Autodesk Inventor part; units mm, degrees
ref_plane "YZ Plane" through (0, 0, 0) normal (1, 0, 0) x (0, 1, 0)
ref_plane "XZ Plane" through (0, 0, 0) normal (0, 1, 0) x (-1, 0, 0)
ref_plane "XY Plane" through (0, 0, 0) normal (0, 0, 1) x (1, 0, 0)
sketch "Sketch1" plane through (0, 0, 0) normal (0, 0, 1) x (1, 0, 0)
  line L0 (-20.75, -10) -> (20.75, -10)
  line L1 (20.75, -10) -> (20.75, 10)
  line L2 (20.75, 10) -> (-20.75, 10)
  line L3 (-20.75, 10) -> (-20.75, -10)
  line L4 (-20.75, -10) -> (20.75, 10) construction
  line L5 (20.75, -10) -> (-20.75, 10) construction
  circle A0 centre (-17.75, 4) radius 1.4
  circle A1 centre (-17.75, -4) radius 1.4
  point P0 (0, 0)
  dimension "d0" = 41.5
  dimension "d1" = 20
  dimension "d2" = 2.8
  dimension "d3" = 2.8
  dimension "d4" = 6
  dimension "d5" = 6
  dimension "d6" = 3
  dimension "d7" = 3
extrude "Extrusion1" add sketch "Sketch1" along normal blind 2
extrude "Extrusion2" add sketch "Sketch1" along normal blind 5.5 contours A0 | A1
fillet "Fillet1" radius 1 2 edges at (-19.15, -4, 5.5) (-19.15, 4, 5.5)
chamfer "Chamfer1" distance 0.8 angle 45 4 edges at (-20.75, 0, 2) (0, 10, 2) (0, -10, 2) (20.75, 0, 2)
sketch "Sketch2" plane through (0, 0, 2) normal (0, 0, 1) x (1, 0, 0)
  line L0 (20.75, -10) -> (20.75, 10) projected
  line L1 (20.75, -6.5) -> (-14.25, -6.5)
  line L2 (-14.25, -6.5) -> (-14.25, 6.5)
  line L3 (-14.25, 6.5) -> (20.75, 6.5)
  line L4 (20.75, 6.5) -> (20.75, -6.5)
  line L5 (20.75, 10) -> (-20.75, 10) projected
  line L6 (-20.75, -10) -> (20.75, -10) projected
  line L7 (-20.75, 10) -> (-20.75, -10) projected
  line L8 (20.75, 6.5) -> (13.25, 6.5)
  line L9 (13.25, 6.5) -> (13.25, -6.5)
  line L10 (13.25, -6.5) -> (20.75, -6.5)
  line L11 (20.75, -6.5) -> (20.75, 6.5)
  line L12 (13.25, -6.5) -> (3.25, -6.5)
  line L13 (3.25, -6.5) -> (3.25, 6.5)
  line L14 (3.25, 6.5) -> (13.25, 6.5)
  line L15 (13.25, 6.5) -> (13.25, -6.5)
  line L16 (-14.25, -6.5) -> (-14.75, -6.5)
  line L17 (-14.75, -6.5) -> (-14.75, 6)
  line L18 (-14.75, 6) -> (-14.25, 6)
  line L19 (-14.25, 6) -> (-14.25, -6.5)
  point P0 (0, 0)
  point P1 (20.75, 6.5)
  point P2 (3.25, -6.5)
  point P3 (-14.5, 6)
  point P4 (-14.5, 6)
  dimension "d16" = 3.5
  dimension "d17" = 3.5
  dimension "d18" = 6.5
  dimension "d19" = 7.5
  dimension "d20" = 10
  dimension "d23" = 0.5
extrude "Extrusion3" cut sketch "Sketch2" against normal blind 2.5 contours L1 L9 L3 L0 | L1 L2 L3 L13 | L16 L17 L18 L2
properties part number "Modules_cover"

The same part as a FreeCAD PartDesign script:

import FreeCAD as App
import Part
import Sketcher
Q = App.Units.Quantity


def edges_at(feature, points):
    """Names of the edges that pass closest to the given points."""
    edges = feature.Shape.Edges
    near = lambda p: min(range(len(edges)), key=lambda i: edges[i].distToShape(Part.Vertex(*p))[0])
    return sorted({f"Edge{near(p) + 1}" for p in points})

doc = App.newDocument("Part")
body = doc.addObject("PartDesign::Body", "Body")

# Sketch on XY plane
sketch1 = body.newObject("Sketcher::SketchObject", "Sketch")
sketch1.AttachmentSupport = (doc.getObject("XY_Plane"), [""])
sketch1.MapMode = "FlatFace"
sketch1.addGeometry(Part.LineSegment(App.Vector(-20.8, 10, 0), App.Vector(-20.8, -10, 0)), False)
sketch1.addGeometry(Part.LineSegment(App.Vector(-20.8, -10, 0), App.Vector(20.8, -10, 0)), False)
sketch1.addGeometry(Part.LineSegment(App.Vector(20.8, -10, 0), App.Vector(20.8, 10, 0)), False)
sketch1.addGeometry(Part.LineSegment(App.Vector(20.8, 10, 0), App.Vector(-20.8, 10, 0)), False)
sketch1.addGeometry(Part.Circle(App.Vector(-17.8, -4, 0), App.Vector(0, 0, 1), 1.4), False)
sketch1.addGeometry(Part.Circle(App.Vector(-17.8, 4, 0), App.Vector(0, 0, 1), 1.4), False)
sketch1.addConstraint(Sketcher.Constraint("Coincident", 0, 2, 1, 1))
sketch1.addConstraint(Sketcher.Constraint("Coincident", 1, 2, 2, 1))
sketch1.addConstraint(Sketcher.Constraint("Coincident", 2, 2, 3, 1))
sketch1.addConstraint(Sketcher.Constraint("Coincident", 3, 2, 0, 1))
sketch1.addConstraint(Sketcher.Constraint("Vertical", 0))
sketch1.addConstraint(Sketcher.Constraint("Horizontal", 1))
sketch1.addConstraint(Sketcher.Constraint("Vertical", 2))
sketch1.addConstraint(Sketcher.Constraint("Horizontal", 3))
sketch1.addConstraint(Sketcher.Constraint("Equal", 4, 5))
sketch1.addConstraint(Sketcher.Constraint("Symmetric", 0, 2, 2, 2, -1, 1))
sketch1.addConstraint(Sketcher.Constraint("Symmetric", 4, 3, 5, 3, -1))
sketch1.addConstraint(Sketcher.Constraint("Diameter", 4, Q("2.8 mm")))
sketch1.addConstraint(Sketcher.Constraint("DistanceY", 0, 2, 0, 1, Q("20 mm")))
sketch1.addConstraint(Sketcher.Constraint("DistanceX", 1, 1, 1, 2, Q("41.5 mm")))
sketch1.addConstraint(Sketcher.Constraint("DistanceX", 0, 2, 4, 3, Q("3 mm")))
sketch1.addConstraint(Sketcher.Constraint("DistanceY", 0, 2, 4, 3, Q("6 mm")))
pad1 = body.newObject("PartDesign::Pad", "Pad")
pad1.Profile = sketch1
pad1.Length = 2

# Sketch on XY plane
sketch2 = body.newObject("Sketcher::SketchObject", "Sketch001")
sketch2.AttachmentSupport = (doc.getObject("XY_Plane"), [""])
sketch2.MapMode = "FlatFace"
sketch2.addGeometry(Part.Circle(App.Vector(-17.8, 4, 0), App.Vector(0, 0, 1), 1.4), False)
sketch2.addGeometry(Part.Circle(App.Vector(-17.8, -4, 0), App.Vector(0, 0, 1), 1.4), False)
sketch2.addConstraint(Sketcher.Constraint("Equal", 0, 1))
sketch2.addConstraint(Sketcher.Constraint("Symmetric", 0, 3, 1, 3, -1))
sketch2.addConstraint(Sketcher.Constraint("Diameter", 0, Q("2.8 mm")))
sketch2.addConstraint(Sketcher.Constraint("DistanceY", -1, 1, 0, 3, Q("4 mm")))
sketch2.addConstraint(Sketcher.Constraint("DistanceX", 0, 3, -1, 1, Q("17.75 mm")))
pad2 = body.newObject("PartDesign::Pad", "Pad001")
pad2.Profile = sketch2
pad2.Length = 5.5
doc.recompute()

fillet = body.newObject("PartDesign::Fillet", "Fillet")
fillet.Base = (pad2, edges_at(pad2, [(-19.15, -4, 5.5), (-19.15, 4, 5.5)]))
fillet.Radius = 1
doc.recompute()

chamfer = body.newObject("PartDesign::Chamfer", "Chamfer")
chamfer.Base = (fillet, edges_at(fillet, [
    (-20.75, 0, 2),
    (0, 10, 2),
    (0, -10, 2),
    (20.75, 0, 2),
]))
chamfer.Size = 0.8

# Sketch on XY plane
sketch3 = body.newObject("Sketcher::SketchObject", "Sketch002")
sketch3.AttachmentSupport = (doc.getObject("XY_Plane"), [""])
sketch3.MapMode = "FlatFace"
sketch3.AttachmentOffset = App.Placement(App.Vector(0, 0, 2), App.Rotation())
sketch3.addGeometry(Part.LineSegment(App.Vector(13.2, -6.5, 0), App.Vector(20.8, -6.5, 0)), False)
sketch3.addGeometry(Part.LineSegment(App.Vector(20.8, -6.5, 0), App.Vector(20.8, 6.5, 0)), False)
sketch3.addGeometry(Part.LineSegment(App.Vector(20.8, 6.5, 0), App.Vector(13.2, 6.5, 0)), False)
sketch3.addGeometry(Part.LineSegment(App.Vector(13.2, 6.5, 0), App.Vector(13.2, -6.5, 0)), False)
sketch3.addGeometry(Part.LineSegment(App.Vector(3.2, -6.5, 0), App.Vector(3.2, 6.5, 0)), False)
sketch3.addGeometry(Part.LineSegment(App.Vector(3.2, 6.5, 0), App.Vector(-14.2, 6.5, 0)), False)
sketch3.addGeometry(Part.LineSegment(App.Vector(-14.2, 6.5, 0), App.Vector(-14.2, 6, 0)), False)
sketch3.addGeometry(Part.LineSegment(App.Vector(-14.2, 6, 0), App.Vector(-14.8, 6, 0)), False)
sketch3.addGeometry(Part.LineSegment(App.Vector(-14.8, 6, 0), App.Vector(-14.8, -6.5, 0)), False)
sketch3.addGeometry(Part.LineSegment(App.Vector(-14.8, -6.5, 0), App.Vector(3.2, -6.5, 0)), False)
sketch3.addConstraint(Sketcher.Constraint("Coincident", 0, 2, 1, 1))
sketch3.addConstraint(Sketcher.Constraint("Coincident", 1, 2, 2, 1))
sketch3.addConstraint(Sketcher.Constraint("Coincident", 2, 2, 3, 1))
sketch3.addConstraint(Sketcher.Constraint("Coincident", 3, 2, 0, 1))
sketch3.addConstraint(Sketcher.Constraint("Coincident", 4, 2, 5, 1))
sketch3.addConstraint(Sketcher.Constraint("Coincident", 5, 2, 6, 1))
sketch3.addConstraint(Sketcher.Constraint("Coincident", 6, 2, 7, 1))
sketch3.addConstraint(Sketcher.Constraint("Coincident", 7, 2, 8, 1))
sketch3.addConstraint(Sketcher.Constraint("Coincident", 8, 2, 9, 1))
sketch3.addConstraint(Sketcher.Constraint("Coincident", 9, 2, 4, 1))
sketch3.addConstraint(Sketcher.Constraint("Horizontal", 0))
sketch3.addConstraint(Sketcher.Constraint("Vertical", 1))
sketch3.addConstraint(Sketcher.Constraint("Horizontal", 2))
sketch3.addConstraint(Sketcher.Constraint("Vertical", 3))
sketch3.addConstraint(Sketcher.Constraint("Vertical", 4))
sketch3.addConstraint(Sketcher.Constraint("Horizontal", 5))
sketch3.addConstraint(Sketcher.Constraint("Vertical", 6))
sketch3.addConstraint(Sketcher.Constraint("Horizontal", 7))
sketch3.addConstraint(Sketcher.Constraint("Vertical", 8))
sketch3.addConstraint(Sketcher.Constraint("Horizontal", 9))
sketch3.addConstraint(Sketcher.Constraint("Horizontal", 2, 2, 4, 2))
sketch3.addConstraint(Sketcher.Constraint("Horizontal", 3, 2, 8, 2))
sketch3.addConstraint(Sketcher.Constraint("Equal", 7, 6))
sketch3.addConstraint(Sketcher.Constraint("DistanceX", 0, 1, 0, 2, Q("7.5 mm")))
sketch3.addConstraint(Sketcher.Constraint("DistanceX", 7, 2, 7, 1, Q("0.5 mm")))
sketch3.addConstraint(Sketcher.Constraint("DistanceX", 4, 2, 2, 2, Q("10 mm")))
sketch3.addConstraint(Sketcher.Constraint("DistanceY", 0, 2, -1, 1, Q("6.5 mm")))
sketch3.addConstraint(Sketcher.Constraint("DistanceY", -1, 1, 1, 2, Q("6.5 mm")))
sketch3.addConstraint(Sketcher.Constraint("DistanceX", 9, 1, 9, 2, Q("18 mm")))
sketch3.addConstraint(Sketcher.Constraint("DistanceX", -1, 1, 0, 2, Q("20.75 mm")))
pocket1 = body.newObject("PartDesign::Pocket", "Pocket")
pocket1.Profile = sketch3
pocket1.Length = 2.5

doc.recompute()
